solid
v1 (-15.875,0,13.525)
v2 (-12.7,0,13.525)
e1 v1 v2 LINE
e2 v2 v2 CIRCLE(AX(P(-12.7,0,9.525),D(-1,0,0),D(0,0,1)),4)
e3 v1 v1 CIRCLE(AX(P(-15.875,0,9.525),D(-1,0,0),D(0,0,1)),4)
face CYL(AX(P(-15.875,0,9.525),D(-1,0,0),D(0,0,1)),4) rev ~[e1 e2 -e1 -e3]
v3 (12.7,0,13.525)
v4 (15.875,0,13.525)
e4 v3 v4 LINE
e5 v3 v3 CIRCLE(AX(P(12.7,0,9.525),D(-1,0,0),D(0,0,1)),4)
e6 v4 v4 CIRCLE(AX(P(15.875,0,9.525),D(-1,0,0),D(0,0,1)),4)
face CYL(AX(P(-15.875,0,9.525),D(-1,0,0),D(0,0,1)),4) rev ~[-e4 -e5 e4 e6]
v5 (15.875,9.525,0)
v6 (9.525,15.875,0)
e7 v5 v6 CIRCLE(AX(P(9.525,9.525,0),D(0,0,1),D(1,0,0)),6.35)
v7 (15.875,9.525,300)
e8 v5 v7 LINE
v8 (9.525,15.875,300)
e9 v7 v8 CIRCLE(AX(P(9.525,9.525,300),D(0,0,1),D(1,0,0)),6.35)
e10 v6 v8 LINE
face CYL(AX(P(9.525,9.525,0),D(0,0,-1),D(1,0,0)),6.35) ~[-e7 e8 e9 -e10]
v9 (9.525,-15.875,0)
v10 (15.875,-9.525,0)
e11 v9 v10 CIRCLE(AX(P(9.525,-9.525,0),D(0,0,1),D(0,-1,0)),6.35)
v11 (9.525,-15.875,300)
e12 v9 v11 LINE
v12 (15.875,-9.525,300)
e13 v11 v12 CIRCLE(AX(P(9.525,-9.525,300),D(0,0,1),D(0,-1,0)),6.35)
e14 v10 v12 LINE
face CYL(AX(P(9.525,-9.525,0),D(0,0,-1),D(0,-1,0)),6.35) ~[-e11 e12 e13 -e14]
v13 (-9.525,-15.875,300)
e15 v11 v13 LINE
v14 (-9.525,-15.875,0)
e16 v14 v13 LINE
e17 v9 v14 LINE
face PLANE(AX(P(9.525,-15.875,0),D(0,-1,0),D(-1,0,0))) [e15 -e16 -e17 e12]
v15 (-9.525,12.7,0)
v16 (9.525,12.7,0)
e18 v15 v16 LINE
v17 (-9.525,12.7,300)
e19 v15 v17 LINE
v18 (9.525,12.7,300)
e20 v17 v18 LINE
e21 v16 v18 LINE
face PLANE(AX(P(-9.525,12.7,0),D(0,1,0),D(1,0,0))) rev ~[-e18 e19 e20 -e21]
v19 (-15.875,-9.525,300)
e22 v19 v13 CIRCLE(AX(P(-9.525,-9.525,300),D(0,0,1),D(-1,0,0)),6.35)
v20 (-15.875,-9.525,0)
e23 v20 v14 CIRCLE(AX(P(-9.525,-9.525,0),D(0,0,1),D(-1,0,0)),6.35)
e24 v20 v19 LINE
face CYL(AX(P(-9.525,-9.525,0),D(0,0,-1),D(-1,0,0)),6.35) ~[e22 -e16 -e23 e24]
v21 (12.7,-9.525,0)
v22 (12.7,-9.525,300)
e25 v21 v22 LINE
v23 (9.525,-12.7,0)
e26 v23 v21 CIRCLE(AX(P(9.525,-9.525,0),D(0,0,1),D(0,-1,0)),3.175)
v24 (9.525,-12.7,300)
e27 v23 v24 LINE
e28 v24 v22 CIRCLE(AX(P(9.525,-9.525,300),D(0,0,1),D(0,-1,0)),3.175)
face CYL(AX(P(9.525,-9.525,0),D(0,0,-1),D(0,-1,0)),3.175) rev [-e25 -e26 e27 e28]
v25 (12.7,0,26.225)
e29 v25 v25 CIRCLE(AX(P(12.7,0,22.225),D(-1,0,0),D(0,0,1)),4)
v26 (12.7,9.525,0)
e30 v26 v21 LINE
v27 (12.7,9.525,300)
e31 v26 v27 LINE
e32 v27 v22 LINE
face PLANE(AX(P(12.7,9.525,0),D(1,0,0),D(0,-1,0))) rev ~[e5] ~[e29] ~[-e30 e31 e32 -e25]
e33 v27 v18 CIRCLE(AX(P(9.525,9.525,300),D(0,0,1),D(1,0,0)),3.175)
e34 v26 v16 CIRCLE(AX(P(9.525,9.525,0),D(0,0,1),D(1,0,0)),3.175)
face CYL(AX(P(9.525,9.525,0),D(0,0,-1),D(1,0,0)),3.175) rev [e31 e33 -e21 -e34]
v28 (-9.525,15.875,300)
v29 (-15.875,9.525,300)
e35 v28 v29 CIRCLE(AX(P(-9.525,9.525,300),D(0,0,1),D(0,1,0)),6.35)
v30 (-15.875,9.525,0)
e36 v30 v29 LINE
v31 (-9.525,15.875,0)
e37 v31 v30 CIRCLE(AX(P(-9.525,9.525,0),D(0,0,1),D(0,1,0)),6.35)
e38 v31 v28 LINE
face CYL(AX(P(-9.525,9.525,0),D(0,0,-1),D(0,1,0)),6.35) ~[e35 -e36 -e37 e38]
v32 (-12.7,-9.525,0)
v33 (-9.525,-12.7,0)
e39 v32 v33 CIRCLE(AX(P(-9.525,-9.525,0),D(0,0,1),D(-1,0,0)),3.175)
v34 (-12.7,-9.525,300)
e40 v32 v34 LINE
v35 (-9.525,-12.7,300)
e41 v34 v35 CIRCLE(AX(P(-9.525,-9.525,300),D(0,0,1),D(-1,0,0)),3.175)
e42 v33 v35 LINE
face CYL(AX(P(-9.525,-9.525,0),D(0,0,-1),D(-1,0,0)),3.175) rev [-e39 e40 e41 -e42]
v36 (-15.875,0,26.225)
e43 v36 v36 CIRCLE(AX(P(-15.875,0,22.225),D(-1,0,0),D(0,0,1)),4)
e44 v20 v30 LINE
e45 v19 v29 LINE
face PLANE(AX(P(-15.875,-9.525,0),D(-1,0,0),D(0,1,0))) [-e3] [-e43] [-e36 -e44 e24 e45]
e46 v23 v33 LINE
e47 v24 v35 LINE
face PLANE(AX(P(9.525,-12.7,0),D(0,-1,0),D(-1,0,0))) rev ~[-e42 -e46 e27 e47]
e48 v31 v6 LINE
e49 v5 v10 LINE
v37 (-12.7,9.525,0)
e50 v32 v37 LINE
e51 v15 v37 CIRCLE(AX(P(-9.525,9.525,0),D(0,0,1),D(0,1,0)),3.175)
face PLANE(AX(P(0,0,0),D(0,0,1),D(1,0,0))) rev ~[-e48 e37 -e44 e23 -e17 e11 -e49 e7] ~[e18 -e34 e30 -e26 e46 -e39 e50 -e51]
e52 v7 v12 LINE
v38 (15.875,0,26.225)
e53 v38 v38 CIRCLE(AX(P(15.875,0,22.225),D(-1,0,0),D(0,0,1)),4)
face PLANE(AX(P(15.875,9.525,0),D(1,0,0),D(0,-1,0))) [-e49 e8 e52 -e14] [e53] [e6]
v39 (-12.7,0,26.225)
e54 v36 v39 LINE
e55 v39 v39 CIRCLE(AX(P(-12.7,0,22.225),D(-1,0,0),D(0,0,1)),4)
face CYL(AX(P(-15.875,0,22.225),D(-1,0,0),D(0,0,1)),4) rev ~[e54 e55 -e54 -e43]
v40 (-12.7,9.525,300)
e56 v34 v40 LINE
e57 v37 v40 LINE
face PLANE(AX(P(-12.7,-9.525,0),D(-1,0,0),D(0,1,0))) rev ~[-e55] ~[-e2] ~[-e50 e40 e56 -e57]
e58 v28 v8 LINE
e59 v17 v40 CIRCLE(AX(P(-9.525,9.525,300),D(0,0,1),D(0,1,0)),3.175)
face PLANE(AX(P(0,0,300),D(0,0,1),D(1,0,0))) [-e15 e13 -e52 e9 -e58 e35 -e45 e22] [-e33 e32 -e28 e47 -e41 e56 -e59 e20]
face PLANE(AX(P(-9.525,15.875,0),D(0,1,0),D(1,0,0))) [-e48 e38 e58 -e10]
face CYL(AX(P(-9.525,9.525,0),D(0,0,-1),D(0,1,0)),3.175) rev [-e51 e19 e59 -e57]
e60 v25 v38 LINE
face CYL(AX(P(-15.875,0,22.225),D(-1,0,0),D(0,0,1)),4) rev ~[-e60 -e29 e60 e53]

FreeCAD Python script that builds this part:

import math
import FreeCAD as App
import Part
import Sketcher

V = App.Vector
Q = App.Units.Quantity

doc = App.newDocument("Part")
params = doc.addObject("Spreadsheet::Sheet", "Params")
for row, (alias, value) in enumerate([
    ("sketch1_radius", "0.25 in"),
    ("sketch1_radius2", "0.125 in"),
    ("pad1_length", "300 mm"),
], start=1):
    params.set(f"A{row}", alias)
    params.set(f"B{row}", "=" + value)
    params.setAlias(f"B{row}", alias)

body = doc.addObject("PartDesign::Body", "Body")

sketch1 = body.newObject("Sketcher::SketchObject", "Sketch")
sketch1.AttachmentSupport = (doc.getObject("XY_Plane"), [""])
sketch1.MapMode = "FlatFace"
sketch1.addGeometry([
    Part.LineSegment(V(-15.9, 9.5, 0), V(-15.9, -9.5, 0)),
    Part.ArcOfCircle(Part.Circle(V(-9.5, -9.5, 0), V(0, 0, 1), 6.3), math.radians(180), math.radians(270)),
    Part.LineSegment(V(-9.5, -15.9, 0), V(9.5, -15.9, 0)),
    Part.ArcOfCircle(Part.Circle(V(9.5, -9.5, 0), V(0, 0, 1), 6.3), math.radians(-90), math.radians(0)),
    Part.LineSegment(V(15.9, -9.5, 0), V(15.9, 9.5, 0)),
    Part.ArcOfCircle(Part.Circle(V(9.5, 9.5, 0), V(0, 0, 1), 6.3), math.radians(0), math.radians(90)),
    Part.LineSegment(V(9.5, 15.9, 0), V(-9.5, 15.9, 0)),
    Part.ArcOfCircle(Part.Circle(V(-9.5, 9.5, 0), V(0, 0, 1), 6.3), math.radians(90), math.radians(180)),
    Part.ArcOfCircle(Part.Circle(V(-9.5, 9.5, 0), V(0, 0, 1), 3.2), math.radians(90), math.radians(180)),
    Part.LineSegment(V(-9.5, 12.7, 0), V(9.5, 12.7, 0)),
    Part.ArcOfCircle(Part.Circle(V(9.5, 9.5, 0), V(0, 0, 1), 3.2), math.radians(0), math.radians(90)),
    Part.LineSegment(V(12.7, 9.5, 0), V(12.7, -9.5, 0)),
    Part.ArcOfCircle(Part.Circle(V(9.5, -9.5, 0), V(0, 0, 1), 3.2), math.radians(-90), math.radians(0)),
    Part.LineSegment(V(9.5, -12.7, 0), V(-9.5, -12.7, 0)),
    Part.ArcOfCircle(Part.Circle(V(-9.5, -9.5, 0), V(0, 0, 1), 3.2), math.radians(180), math.radians(270)),
    Part.LineSegment(V(-12.7, -9.5, 0), V(-12.7, 9.5, 0)),
], False)
sketch1.addConstraint([
    Sketcher.Constraint("Tangent", 0, 2, 1, 1),
    Sketcher.Constraint("Tangent", 1, 2, 2, 1),
    Sketcher.Constraint("Tangent", 2, 2, 3, 1),
    Sketcher.Constraint("Tangent", 3, 2, 4, 1),
    Sketcher.Constraint("Tangent", 4, 2, 5, 1),
    Sketcher.Constraint("Tangent", 5, 2, 6, 1),
    Sketcher.Constraint("Tangent", 6, 2, 7, 1),
    Sketcher.Constraint("Tangent", 7, 2, 0, 1),
    Sketcher.Constraint("Tangent", 8, 1, 9, 1),
    Sketcher.Constraint("Tangent", 9, 2, 10, 2),
    Sketcher.Constraint("Tangent", 10, 1, 11, 1),
    Sketcher.Constraint("Tangent", 11, 2, 12, 2),
    Sketcher.Constraint("Tangent", 12, 1, 13, 1),
    Sketcher.Constraint("Tangent", 13, 2, 14, 2),
    Sketcher.Constraint("Tangent", 14, 1, 15, 1),
    Sketcher.Constraint("Tangent", 15, 2, 8, 2),
    Sketcher.Constraint("Vertical", 0),
    Sketcher.Constraint("Horizontal", 2),
    Sketcher.Constraint("Vertical", 4),
    Sketcher.Constraint("Horizontal", 6),
    Sketcher.Constraint("Horizontal", 9),
    Sketcher.Constraint("Vertical", 11),
    Sketcher.Constraint("Horizontal", 13),
    Sketcher.Constraint("Vertical", 15),
    Sketcher.Constraint("Coincident", 8, 3, 7, 3),
    Sketcher.Constraint("Coincident", 10, 3, 5, 3),
    Sketcher.Constraint("Coincident", 12, 3, 3, 3),
    Sketcher.Constraint("Equal", 1, 3),
    Sketcher.Constraint("Equal", 3, 5),
    Sketcher.Constraint("Equal", 5, 7),
    Sketcher.Constraint("Equal", 12, 14),
    Sketcher.Constraint("Symmetric", 1, 3, 5, 3, -1, 1),
    Sketcher.Constraint("Equal", 13, 0),
    Sketcher.Constraint("Radius", 1, Q("0.25 in")),
    Sketcher.Constraint("Radius", 8, Q("0.125 in")),
    Sketcher.Constraint("DistanceX", 0, 2, -1, 1, Q("0.625 in")),
])
sketch1.setExpression("Constraints[33]", "Params.sketch1_radius")
sketch1.setExpression("Constraints[34]", "Params.sketch1_radius2")
pad1 = body.newObject("PartDesign::Pad", "Pad")
pad1.Profile = sketch1
pad1.setExpression("Length", "Params.pad1_length")

sketch2 = body.newObject("Sketcher::SketchObject", "Sketch001")
sketch2.AttachmentSupport = (doc.getObject("YZ_Plane"), [""])
sketch2.MapMode = "FlatFace"
sketch2.AttachmentOffset = App.Placement(V(0, 0, -0.625 * 25.4), App.Rotation())
sketch2.addGeometry([
    Part.Circle(V(0, 9.5, 0), V(0, 0, 1), 4),
    Part.Circle(V(0, 22.2, 0), V(0, 0, 1), 4),
], False)
sketch2.addConstraint([
    Sketcher.Constraint("Equal", 0, 1),
    Sketcher.Constraint("PointOnObject", 0, 3, -2),
    Sketcher.Constraint("PointOnObject", 1, 3, -2),
    Sketcher.Constraint("Diameter", 0, Q("8 mm")),
    Sketcher.Constraint("DistanceY", 0, 3, 1, 3, Q("0.5 in")),
    Sketcher.Constraint("DistanceY", -1, 1, 0, 3, Q("0.375 in")),
])
pocket1 = body.newObject("PartDesign::Pocket", "Pocket")
pocket1.Profile = sketch2
pocket1.Type = "ThroughAll"
pocket1.Reversed = True

doc.recompute()
